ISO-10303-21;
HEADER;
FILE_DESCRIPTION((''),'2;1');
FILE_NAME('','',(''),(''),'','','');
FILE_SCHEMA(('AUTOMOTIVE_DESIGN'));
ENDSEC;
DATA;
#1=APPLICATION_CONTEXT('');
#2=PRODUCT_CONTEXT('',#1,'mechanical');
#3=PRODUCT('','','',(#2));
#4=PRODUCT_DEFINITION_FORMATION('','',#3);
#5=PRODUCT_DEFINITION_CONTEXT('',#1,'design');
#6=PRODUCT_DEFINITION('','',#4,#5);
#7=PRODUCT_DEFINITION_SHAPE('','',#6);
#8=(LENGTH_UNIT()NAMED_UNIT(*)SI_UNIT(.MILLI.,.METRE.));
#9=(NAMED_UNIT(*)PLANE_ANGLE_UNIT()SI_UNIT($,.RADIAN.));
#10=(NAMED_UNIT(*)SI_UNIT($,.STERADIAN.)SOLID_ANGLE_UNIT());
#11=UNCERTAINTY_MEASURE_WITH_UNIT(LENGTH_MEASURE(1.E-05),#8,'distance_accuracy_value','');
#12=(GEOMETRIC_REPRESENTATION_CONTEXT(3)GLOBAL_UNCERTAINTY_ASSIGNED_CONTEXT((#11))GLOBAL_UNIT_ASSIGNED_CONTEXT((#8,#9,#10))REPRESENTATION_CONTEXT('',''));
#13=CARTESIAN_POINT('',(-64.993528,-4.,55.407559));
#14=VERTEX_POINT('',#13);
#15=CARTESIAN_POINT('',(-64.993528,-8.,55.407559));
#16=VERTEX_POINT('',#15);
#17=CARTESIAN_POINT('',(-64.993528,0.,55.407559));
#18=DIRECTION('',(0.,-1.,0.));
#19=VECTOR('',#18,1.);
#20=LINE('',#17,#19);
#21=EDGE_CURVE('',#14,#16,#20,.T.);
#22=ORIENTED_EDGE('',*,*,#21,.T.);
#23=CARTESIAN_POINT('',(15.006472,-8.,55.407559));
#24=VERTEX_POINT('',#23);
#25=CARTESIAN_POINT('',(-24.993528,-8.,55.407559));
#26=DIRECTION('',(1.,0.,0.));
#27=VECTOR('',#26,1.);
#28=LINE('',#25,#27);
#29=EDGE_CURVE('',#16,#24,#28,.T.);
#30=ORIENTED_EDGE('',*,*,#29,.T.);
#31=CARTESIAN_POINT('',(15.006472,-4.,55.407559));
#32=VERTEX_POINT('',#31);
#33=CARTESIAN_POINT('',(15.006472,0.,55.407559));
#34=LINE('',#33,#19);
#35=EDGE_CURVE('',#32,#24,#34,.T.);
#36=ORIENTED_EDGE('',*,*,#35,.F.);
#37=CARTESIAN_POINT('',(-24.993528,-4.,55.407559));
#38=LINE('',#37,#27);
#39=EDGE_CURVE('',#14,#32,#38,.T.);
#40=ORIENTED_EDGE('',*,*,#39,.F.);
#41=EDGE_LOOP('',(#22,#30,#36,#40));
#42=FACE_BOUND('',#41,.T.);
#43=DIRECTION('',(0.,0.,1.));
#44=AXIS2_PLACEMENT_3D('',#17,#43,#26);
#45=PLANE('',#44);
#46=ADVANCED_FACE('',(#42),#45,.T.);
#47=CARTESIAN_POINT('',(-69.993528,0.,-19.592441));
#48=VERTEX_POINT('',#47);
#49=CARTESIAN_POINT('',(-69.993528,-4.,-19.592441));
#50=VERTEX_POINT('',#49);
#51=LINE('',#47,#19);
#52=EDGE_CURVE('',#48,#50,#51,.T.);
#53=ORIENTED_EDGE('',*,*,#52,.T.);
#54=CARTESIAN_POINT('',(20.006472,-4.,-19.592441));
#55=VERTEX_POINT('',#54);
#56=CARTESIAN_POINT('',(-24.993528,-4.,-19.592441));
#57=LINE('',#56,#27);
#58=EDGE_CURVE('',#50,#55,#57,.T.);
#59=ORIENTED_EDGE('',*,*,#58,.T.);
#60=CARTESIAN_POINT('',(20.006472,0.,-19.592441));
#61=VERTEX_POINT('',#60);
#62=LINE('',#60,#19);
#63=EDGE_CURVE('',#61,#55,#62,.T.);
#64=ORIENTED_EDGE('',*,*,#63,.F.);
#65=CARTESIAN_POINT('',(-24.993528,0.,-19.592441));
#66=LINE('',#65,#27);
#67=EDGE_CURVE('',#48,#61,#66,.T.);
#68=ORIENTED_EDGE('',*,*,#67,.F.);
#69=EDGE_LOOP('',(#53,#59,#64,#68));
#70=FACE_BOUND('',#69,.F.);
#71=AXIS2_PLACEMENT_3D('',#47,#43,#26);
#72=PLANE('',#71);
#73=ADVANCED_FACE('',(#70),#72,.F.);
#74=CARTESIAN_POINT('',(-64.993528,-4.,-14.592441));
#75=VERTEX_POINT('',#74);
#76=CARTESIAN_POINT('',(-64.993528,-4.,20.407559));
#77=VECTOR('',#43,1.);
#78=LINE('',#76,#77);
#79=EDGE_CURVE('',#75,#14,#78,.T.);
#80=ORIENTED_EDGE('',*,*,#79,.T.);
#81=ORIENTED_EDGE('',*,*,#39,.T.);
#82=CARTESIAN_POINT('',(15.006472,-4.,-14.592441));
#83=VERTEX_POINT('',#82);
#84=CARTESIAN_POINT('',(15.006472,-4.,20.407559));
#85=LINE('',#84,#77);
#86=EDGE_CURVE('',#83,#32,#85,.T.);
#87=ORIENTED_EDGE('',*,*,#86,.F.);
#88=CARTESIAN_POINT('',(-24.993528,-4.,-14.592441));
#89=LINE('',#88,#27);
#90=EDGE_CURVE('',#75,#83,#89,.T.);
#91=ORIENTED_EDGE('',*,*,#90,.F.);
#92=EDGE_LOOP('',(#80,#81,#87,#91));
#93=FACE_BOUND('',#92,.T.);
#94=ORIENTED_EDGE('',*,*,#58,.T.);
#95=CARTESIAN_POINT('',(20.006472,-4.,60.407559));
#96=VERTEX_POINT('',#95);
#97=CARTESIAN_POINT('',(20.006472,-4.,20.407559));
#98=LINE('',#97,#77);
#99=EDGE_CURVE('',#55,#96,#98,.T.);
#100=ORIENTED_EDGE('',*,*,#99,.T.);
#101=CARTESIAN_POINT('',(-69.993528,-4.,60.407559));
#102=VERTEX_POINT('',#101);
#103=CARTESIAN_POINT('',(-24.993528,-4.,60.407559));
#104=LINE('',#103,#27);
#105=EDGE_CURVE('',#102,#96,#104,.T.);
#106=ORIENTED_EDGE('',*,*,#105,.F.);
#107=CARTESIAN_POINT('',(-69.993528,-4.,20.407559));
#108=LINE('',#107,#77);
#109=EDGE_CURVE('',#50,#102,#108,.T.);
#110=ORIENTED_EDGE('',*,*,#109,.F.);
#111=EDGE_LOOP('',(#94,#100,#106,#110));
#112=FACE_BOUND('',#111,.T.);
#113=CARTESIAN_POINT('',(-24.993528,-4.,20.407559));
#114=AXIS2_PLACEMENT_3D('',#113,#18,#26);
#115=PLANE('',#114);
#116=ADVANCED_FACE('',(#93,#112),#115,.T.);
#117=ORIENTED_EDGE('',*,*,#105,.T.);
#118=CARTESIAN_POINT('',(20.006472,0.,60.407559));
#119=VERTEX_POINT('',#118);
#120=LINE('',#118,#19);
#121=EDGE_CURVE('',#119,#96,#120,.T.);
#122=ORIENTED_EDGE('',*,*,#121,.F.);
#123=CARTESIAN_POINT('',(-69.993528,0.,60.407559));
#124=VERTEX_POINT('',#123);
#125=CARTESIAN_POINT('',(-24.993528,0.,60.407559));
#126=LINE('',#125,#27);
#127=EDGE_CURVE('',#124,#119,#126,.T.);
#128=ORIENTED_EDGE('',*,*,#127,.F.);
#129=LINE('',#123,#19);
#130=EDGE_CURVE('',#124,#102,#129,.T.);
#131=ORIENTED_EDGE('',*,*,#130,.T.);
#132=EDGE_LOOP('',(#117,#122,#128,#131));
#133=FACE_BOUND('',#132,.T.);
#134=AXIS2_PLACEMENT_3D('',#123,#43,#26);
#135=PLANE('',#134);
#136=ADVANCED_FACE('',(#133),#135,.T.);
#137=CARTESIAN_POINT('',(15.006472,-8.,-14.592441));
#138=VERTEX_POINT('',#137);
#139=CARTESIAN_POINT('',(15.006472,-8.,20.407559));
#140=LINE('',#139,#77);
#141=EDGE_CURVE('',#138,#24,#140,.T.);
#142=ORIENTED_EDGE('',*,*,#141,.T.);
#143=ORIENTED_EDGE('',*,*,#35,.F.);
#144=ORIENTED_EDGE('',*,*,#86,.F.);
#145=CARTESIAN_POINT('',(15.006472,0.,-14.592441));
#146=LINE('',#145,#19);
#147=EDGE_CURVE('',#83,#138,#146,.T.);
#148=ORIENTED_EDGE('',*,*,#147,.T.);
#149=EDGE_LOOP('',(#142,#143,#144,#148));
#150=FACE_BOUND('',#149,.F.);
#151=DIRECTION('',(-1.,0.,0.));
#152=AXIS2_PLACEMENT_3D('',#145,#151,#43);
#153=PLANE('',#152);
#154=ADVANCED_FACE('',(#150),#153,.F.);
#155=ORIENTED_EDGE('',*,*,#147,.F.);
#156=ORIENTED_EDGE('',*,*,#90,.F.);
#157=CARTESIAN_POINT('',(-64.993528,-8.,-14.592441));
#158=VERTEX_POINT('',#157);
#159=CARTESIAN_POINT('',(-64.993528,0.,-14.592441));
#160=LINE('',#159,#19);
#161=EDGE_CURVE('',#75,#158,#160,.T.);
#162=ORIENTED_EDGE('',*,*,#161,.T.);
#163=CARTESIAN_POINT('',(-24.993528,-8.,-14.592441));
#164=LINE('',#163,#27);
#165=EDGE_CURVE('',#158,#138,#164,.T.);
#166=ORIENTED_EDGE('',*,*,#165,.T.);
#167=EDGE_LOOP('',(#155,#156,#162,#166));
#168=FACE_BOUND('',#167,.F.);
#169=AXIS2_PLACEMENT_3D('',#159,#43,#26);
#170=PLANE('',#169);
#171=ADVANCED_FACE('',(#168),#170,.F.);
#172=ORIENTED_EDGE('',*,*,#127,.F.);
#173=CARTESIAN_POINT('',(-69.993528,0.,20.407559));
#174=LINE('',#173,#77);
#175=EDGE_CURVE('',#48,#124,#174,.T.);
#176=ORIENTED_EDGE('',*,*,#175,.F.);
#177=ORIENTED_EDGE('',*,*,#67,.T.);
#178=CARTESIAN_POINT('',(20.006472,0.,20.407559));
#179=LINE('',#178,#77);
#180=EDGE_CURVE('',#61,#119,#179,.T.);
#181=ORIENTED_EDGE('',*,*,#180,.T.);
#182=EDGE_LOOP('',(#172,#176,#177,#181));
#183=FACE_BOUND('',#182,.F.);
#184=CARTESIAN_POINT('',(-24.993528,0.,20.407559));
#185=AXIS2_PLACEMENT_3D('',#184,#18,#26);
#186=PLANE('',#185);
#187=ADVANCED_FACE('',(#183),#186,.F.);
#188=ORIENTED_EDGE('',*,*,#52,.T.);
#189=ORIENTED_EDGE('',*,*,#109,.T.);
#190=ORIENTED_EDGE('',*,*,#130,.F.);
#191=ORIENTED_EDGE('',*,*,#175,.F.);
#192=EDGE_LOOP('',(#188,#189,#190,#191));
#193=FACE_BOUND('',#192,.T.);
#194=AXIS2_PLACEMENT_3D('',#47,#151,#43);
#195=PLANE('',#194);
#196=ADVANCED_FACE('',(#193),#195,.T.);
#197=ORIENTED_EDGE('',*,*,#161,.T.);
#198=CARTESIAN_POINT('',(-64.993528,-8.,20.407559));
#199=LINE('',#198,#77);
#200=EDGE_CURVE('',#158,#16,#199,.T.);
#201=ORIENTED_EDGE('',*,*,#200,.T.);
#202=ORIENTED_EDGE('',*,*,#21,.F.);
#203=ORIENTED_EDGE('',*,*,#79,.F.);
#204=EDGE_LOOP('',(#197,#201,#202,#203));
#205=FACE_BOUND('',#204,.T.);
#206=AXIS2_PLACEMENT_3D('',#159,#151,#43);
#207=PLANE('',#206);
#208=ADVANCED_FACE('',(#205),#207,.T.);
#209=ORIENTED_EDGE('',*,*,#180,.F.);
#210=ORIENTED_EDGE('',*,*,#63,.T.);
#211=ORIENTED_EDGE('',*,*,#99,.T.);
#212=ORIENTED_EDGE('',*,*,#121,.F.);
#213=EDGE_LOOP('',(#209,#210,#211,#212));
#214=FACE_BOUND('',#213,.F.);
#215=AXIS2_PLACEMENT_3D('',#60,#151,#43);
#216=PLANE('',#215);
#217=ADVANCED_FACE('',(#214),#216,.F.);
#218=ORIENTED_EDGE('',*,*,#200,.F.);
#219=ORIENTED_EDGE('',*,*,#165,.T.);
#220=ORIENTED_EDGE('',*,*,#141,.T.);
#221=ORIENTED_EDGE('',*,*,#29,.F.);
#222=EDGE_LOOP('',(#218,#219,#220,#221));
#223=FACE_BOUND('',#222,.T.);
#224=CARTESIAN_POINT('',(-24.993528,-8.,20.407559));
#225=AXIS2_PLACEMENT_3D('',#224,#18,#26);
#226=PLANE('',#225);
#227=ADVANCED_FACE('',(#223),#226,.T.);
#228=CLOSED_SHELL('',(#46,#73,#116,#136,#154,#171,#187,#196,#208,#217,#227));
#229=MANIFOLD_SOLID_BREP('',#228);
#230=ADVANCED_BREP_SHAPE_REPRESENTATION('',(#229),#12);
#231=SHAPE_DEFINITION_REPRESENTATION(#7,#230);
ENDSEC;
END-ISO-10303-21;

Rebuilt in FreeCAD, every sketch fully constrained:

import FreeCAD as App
import Part
import Sketcher

V = App.Vector


def add_polygon(sketch, points):
    """Adds a closed chain of lines whose ends are joined by coincident constraints."""
    first, n = sketch.GeometryCount, len(points)
    for a, b in zip(points, points[1:] + points[:1]):
        sketch.addGeometry(Part.LineSegment(App.Vector(*a, 0), App.Vector(*b, 0)), False)
    for i in range(n):
        sketch.addConstraint(Sketcher.Constraint("Coincident", first + i, 2, first + (i + 1) % n, 1))

doc = App.newDocument("Part")
body = doc.addObject("PartDesign::Body", "Body")

sketch1 = doc.addObject("Sketcher::SketchObject", "Sketch")
body.addObject(sketch1)
sketch1.AttachmentSupport = (doc.XZ_Plane, [""])
sketch1.MapMode = "FlatFace"
add_polygon(sketch1, [(-65, 55), (-65, -15), (15, -15), (15, 55)])
sketch1.addConstraint([
    Sketcher.Constraint("Vertical", 0),
    Sketcher.Constraint("Horizontal", 1),
    Sketcher.Constraint("Vertical", 2),
    Sketcher.Constraint("Horizontal", 3),
    Sketcher.Constraint("DistanceX", 1, 1, 1, 2, 80.0),
    Sketcher.Constraint("DistanceY", 0, 2, 0, 1, 70.0),
    Sketcher.Constraint("DistanceY", 0, 2, -1, 1, 14.592441),
    Sketcher.Constraint("DistanceX", 0, 2, -1, 1, 64.993528),
])
pad1 = doc.addObject("PartDesign::Pad", "Pad")
body.addObject(pad1)
pad1.Profile = sketch1
pad1.Length = 8

sketch2 = doc.addObject("Sketcher::SketchObject", "Sketch001")
body.addObject(sketch2)
sketch2.AttachmentSupport = (doc.XZ_Plane, [""])
sketch2.MapMode = "FlatFace"
add_polygon(sketch2, [(-70, 60), (-70, -20), (20, -20), (20, 60)])
add_polygon(sketch2, [(15, -15), (-65, -15), (-65, 55), (15, 55)])
sketch2.addConstraint([
    Sketcher.Constraint("Vertical", 0),
    Sketcher.Constraint("Horizontal", 1),
    Sketcher.Constraint("Vertical", 2),
    Sketcher.Constraint("Horizontal", 3),
    Sketcher.Constraint("Horizontal", 4),
    Sketcher.Constraint("Vertical", 5),
    Sketcher.Constraint("Horizontal", 6),
    Sketcher.Constraint("Vertical", 7),
    Sketcher.Constraint("Equal", 6, 0),
    Sketcher.Constraint("DistanceX", 1, 1, 1, 2, 90.0),
    Sketcher.Constraint("DistanceX", 4, 2, 4, 1, 80.0),
    Sketcher.Constraint("DistanceY", 5, 1, 5, 2, 70.0),
    Sketcher.Constraint("DistanceX", 0, 2, 4, 2, 5.0),
    Sketcher.Constraint("DistanceY", 0, 2, 4, 2, 5.0),
    Sketcher.Constraint("DistanceY", 0, 2, -1, 1, 19.592441),
    Sketcher.Constraint("DistanceX", -1, 1, 1, 2, 20.006472),
])
pad2 = doc.addObject("PartDesign::Pad", "Pad001")
body.addObject(pad2)
pad2.Profile = sketch2
pad2.Length = 4

doc.recompute()
